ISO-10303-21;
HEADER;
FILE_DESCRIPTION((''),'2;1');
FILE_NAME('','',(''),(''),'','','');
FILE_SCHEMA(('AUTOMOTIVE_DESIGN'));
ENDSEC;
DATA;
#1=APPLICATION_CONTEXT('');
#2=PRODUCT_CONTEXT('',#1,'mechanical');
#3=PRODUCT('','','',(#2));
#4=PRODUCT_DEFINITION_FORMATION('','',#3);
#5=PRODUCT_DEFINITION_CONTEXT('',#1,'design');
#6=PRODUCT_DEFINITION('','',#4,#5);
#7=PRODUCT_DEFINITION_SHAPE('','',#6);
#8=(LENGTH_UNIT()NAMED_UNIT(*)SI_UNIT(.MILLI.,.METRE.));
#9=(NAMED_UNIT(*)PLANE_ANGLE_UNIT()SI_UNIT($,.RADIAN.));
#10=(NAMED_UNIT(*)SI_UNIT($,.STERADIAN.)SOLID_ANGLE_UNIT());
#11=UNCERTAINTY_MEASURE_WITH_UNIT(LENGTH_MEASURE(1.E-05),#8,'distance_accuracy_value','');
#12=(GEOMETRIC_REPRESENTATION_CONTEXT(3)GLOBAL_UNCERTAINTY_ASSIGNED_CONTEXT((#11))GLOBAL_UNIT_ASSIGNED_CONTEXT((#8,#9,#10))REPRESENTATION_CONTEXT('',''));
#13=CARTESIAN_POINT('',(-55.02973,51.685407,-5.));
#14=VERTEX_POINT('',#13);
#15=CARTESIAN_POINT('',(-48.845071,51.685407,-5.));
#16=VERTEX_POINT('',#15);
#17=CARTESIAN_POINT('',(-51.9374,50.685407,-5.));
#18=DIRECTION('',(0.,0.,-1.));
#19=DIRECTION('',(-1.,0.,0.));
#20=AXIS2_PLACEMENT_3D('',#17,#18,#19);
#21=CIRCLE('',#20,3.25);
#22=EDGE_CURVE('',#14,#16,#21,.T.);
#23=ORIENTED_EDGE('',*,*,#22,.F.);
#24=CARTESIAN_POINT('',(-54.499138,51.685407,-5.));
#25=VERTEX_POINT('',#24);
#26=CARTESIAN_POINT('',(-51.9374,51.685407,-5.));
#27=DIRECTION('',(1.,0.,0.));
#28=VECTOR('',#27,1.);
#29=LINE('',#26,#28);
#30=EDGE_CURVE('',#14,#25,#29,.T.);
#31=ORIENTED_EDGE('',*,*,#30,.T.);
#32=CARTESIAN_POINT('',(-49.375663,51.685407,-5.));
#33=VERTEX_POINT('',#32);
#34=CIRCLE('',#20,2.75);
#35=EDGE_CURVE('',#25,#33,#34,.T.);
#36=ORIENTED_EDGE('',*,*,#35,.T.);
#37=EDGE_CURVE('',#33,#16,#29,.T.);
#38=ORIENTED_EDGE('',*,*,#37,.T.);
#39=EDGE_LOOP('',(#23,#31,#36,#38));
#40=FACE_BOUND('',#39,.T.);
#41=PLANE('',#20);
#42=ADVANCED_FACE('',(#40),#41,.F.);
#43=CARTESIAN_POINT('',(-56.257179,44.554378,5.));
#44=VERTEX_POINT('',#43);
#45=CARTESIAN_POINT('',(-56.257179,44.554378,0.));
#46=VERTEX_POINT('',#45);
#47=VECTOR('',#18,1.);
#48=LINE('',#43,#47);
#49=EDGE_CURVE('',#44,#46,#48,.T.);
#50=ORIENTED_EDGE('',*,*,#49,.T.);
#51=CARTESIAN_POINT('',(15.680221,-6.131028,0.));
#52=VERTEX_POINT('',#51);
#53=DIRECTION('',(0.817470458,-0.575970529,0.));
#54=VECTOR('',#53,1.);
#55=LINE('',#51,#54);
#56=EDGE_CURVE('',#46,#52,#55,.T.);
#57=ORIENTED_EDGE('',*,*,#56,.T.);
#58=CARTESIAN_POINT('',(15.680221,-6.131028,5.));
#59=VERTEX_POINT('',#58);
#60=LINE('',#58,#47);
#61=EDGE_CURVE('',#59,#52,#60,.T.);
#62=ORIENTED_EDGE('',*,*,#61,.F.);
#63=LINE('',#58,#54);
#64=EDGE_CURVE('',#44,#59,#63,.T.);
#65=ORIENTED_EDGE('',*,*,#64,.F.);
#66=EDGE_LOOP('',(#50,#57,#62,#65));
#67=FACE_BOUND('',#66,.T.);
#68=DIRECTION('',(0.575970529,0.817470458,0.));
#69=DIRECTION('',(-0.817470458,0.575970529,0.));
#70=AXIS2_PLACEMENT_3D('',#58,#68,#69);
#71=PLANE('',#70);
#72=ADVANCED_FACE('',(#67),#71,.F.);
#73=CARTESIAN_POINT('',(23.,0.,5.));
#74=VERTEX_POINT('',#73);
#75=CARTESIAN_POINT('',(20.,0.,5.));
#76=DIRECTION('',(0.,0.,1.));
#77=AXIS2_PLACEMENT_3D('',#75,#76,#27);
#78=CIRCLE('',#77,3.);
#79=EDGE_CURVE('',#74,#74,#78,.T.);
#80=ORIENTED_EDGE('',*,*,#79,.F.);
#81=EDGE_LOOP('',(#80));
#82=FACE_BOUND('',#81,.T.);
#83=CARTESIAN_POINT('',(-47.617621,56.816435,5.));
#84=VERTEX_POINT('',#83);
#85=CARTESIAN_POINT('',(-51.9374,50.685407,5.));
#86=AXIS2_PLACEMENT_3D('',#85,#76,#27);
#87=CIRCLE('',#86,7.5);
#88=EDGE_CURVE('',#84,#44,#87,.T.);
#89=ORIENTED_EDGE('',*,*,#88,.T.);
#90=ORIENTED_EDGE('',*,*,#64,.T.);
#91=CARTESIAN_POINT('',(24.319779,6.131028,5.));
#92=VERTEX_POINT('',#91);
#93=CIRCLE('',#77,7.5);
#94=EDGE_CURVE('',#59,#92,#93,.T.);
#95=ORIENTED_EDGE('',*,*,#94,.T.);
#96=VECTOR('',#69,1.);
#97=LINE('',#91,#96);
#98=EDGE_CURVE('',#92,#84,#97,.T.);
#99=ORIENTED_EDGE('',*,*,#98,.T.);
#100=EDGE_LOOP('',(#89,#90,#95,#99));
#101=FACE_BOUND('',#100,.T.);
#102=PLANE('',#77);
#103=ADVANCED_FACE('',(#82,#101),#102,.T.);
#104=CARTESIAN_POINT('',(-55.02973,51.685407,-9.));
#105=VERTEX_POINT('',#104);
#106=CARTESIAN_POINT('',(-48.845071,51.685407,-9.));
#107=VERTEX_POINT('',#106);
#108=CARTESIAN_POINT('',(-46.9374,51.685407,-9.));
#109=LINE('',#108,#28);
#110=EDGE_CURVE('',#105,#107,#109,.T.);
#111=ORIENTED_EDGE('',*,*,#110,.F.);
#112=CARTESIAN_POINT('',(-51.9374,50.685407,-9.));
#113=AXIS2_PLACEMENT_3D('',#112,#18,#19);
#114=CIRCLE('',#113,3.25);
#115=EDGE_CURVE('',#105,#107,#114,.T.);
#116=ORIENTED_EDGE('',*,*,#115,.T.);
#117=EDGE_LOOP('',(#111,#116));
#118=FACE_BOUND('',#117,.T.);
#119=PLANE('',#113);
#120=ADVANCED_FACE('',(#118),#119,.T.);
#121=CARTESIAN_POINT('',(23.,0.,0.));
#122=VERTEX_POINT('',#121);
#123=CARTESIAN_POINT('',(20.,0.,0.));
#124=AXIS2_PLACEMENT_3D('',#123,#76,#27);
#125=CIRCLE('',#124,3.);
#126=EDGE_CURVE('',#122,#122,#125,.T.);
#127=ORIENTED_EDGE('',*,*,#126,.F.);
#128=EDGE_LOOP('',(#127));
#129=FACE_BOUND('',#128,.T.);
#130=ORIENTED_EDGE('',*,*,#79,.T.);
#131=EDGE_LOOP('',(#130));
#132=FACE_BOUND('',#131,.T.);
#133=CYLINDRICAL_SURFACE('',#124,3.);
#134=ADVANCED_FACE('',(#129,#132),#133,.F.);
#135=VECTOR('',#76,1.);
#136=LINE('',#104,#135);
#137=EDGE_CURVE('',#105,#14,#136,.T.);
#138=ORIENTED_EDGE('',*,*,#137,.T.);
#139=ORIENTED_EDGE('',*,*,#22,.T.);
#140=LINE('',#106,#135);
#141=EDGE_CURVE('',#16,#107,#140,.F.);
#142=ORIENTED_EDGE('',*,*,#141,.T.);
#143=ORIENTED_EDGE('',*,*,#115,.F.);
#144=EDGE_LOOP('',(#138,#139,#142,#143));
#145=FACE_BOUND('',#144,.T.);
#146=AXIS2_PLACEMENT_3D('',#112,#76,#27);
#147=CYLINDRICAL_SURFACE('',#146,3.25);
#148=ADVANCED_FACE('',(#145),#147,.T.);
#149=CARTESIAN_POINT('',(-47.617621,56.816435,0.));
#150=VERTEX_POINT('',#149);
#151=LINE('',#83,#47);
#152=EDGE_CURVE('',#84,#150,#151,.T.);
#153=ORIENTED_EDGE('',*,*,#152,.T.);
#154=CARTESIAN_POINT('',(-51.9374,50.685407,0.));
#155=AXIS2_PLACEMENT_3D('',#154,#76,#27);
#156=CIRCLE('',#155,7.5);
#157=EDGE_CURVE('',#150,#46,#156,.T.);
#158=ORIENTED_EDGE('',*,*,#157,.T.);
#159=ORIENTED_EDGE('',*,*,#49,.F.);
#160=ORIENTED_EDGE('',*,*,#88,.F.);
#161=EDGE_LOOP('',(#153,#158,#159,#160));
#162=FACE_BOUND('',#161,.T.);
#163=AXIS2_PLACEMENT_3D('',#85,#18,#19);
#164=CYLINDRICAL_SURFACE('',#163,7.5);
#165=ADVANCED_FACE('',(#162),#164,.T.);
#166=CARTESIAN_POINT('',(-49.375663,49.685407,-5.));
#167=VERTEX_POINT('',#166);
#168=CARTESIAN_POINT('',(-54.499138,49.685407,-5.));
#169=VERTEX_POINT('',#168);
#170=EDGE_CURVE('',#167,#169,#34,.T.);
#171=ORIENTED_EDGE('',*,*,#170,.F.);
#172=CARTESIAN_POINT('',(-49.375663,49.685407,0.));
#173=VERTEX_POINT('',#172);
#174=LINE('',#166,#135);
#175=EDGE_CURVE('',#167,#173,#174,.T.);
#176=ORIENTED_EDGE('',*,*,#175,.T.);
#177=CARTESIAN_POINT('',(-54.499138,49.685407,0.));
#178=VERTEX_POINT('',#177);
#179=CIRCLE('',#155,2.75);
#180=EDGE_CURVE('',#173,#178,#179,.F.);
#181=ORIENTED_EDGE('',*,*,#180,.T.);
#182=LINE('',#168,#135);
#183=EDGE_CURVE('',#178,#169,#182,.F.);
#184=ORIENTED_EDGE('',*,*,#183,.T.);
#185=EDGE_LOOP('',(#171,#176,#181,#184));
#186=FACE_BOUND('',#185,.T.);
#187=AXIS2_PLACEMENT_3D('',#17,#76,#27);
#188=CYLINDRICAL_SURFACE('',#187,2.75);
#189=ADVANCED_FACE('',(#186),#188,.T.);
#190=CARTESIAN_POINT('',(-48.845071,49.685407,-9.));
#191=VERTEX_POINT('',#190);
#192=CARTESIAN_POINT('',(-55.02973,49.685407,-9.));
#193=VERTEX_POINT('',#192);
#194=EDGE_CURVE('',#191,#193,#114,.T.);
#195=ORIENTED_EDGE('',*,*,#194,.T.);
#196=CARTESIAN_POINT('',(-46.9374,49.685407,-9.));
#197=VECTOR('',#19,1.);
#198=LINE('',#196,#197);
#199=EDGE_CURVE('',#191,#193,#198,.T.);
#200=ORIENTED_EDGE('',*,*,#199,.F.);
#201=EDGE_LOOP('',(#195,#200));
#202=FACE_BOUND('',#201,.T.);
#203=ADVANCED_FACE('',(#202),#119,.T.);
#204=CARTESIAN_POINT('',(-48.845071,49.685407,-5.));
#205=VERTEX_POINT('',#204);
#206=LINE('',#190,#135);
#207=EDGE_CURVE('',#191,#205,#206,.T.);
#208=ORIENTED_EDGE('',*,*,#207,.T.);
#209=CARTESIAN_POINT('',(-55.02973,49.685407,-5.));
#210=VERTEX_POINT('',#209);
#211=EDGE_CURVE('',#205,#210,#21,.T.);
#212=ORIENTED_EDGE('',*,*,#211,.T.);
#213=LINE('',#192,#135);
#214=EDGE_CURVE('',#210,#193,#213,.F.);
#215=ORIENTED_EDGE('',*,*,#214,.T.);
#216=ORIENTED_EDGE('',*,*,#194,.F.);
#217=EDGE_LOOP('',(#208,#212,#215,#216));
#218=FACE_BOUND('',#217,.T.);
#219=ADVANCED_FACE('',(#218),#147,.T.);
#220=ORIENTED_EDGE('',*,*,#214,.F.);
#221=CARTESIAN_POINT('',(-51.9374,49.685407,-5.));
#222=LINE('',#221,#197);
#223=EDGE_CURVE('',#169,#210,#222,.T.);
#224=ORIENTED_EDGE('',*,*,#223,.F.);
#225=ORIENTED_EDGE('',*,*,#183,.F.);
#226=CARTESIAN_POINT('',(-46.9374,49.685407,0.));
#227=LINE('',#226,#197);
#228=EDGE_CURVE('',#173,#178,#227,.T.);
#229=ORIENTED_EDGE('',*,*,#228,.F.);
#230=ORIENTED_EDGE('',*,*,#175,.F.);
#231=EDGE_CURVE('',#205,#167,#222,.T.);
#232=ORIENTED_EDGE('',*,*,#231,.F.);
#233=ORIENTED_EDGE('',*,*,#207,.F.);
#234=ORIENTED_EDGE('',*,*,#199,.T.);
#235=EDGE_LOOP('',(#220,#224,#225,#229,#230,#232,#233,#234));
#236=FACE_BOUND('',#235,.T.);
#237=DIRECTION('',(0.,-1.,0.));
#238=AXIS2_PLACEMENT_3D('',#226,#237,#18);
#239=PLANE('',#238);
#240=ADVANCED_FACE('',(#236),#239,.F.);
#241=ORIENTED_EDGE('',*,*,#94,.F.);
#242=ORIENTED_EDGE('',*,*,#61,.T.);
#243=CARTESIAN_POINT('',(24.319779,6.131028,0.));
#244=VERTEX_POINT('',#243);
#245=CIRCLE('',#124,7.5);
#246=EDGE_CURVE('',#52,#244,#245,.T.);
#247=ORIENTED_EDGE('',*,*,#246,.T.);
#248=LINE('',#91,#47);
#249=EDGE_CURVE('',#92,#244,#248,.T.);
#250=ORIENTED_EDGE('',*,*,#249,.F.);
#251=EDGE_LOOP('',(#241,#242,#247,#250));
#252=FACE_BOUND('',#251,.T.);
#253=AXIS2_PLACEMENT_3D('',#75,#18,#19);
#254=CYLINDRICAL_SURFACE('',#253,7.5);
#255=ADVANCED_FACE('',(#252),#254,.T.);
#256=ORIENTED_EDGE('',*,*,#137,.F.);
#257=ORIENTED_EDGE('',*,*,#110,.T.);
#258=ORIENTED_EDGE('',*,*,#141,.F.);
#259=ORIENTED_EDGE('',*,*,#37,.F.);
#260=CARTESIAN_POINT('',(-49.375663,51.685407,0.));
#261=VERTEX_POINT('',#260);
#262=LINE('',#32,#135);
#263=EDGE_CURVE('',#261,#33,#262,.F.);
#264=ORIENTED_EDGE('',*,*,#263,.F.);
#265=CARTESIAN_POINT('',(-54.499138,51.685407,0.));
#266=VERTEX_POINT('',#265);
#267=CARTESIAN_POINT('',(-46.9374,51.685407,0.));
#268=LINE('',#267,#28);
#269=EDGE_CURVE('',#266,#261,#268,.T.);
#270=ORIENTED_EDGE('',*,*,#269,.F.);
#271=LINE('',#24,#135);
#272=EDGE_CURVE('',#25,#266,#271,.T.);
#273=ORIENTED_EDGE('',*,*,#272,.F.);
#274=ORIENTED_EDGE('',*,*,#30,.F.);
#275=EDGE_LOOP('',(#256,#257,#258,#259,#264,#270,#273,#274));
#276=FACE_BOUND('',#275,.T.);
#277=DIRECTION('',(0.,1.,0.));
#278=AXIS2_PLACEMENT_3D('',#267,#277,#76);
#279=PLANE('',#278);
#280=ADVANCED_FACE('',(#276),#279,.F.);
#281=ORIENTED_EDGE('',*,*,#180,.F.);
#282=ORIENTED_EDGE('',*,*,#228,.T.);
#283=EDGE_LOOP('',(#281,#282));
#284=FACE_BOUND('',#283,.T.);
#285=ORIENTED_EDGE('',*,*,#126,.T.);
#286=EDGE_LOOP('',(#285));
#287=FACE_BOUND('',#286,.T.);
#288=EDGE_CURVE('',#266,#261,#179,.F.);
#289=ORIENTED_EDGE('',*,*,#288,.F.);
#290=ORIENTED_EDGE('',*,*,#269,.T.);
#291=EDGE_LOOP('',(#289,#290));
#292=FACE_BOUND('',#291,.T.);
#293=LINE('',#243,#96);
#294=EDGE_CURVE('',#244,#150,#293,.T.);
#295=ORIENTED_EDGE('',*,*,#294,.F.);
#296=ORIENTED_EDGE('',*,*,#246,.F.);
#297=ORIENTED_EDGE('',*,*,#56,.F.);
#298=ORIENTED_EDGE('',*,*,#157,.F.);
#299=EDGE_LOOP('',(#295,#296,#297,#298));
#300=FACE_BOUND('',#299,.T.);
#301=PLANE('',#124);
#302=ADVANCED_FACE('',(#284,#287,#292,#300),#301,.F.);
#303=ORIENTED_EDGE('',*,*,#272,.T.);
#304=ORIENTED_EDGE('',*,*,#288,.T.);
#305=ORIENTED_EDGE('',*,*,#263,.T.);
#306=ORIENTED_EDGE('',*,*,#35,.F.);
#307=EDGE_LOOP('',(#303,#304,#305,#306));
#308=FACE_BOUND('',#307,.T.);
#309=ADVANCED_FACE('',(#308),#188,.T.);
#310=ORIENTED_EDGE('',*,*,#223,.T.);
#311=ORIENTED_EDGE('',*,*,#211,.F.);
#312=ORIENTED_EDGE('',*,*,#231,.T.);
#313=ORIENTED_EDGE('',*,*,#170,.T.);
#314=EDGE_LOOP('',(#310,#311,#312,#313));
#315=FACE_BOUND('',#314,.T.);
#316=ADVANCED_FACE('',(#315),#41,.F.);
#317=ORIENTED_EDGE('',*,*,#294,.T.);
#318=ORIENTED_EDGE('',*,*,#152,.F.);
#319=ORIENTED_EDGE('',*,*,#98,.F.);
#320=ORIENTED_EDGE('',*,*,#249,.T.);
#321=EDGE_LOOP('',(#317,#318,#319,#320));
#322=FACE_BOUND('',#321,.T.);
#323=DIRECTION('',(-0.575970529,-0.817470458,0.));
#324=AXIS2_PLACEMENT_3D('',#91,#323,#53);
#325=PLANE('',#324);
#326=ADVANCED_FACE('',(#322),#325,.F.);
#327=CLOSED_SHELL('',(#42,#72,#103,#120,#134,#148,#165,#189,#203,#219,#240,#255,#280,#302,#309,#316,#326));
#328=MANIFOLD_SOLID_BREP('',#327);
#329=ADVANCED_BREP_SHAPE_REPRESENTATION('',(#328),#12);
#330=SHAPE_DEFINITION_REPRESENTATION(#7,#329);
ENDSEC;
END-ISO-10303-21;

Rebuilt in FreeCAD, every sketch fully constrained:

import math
import FreeCAD as App
import Part
import Sketcher


def add_polygon(sketch, points):
    """Adds a closed chain of lines whose ends are joined by coincident constraints."""
    first, n = sketch.GeometryCount, len(points)
    for a, b in zip(points, points[1:] + points[:1]):
        sketch.addGeometry(Part.LineSegment(App.Vector(*a, 0), App.Vector(*b, 0)), False)
    for i in range(n):
        sketch.addConstraint(Sketcher.Constraint("Coincident", first + i, 2, first + (i + 1) % n, 1))

doc = App.newDocument("Part")
body = doc.addObject("PartDesign::Body", "Body")

# Sketch on XY plane
sketch1 = body.newObject("Sketcher::SketchObject", "Sketch")
sketch1.AttachmentSupport = (doc.getObject("XY_Plane"), [""])
sketch1.MapMode = "FlatFace"
sketch1.addGeometry([
    Part.LineSegment(App.Vector(-56.257179, 44.554378, 0), App.Vector(15.680221, -6.131028, 0)),
    Part.ArcOfCircle(Part.Circle(App.Vector(20, 0, 0), App.Vector(0, 0, 1), 7.5), math.radians(-125.167627), math.radians(54.832373)),
    Part.LineSegment(App.Vector(24.319779, 6.131028, 0), App.Vector(-47.617621, 56.816435, 0)),
    Part.ArcOfCircle(Part.Circle(App.Vector(-51.9374, 50.685407, 0), App.Vector(0, 0, 1), 7.5), math.radians(54.832373), math.radians(234.832373)),
], False)
sketch1.addConstraint([
    Sketcher.Constraint("Tangent", 0, 2, 1, 1),
    Sketcher.Constraint("Tangent", 1, 2, 2, 1),
    Sketcher.Constraint("Tangent", 2, 2, 3, 1),
    Sketcher.Constraint("Tangent", 3, 2, 0, 1),
    Sketcher.Constraint("Equal", 1, 3),
    Sketcher.Constraint("PointOnObject", 1, 3, -1),
    Sketcher.Constraint("Radius", 1, 7.5),
    Sketcher.Constraint("Distance", 0, 88.0),
    Sketcher.Constraint("DistanceX", -1, 1, 1, 3, 20.0),
    Sketcher.Constraint("DistanceX", 3, 3, -1, 1, 51.9374),
])
pad1 = body.newObject("PartDesign::Pad", "Pad")
pad1.Profile = sketch1
pad1.Length = 5

# Sketch on XY plane
sketch2 = body.newObject("Sketcher::SketchObject", "Sketch001")
sketch2.AttachmentSupport = (doc.getObject("XY_Plane"), [""])
sketch2.MapMode = "FlatFace"
sketch2.AttachmentOffset = App.Placement(App.Vector(0, 0, 5), App.Rotation())
sketch2.addGeometry(Part.Circle(App.Vector(20, 0, 0), App.Vector(0, 0, 1), 3), False)
sketch2.addConstraint([
    Sketcher.Constraint("PointOnObject", 0, 3, -1),
    Sketcher.Constraint("Diameter", 0, 6.0),
    Sketcher.Constraint("DistanceX", -1, 1, 0, 3, 20.0),
])
pocket1 = body.newObject("PartDesign::Pocket", "Pocket")
pocket1.Profile = sketch2
pocket1.Length = 5

# Sketch on XY plane
sketch3 = body.newObject("Sketcher::SketchObject", "Sketch002")
sketch3.AttachmentSupport = (doc.getObject("XY_Plane"), [""])
sketch3.MapMode = "FlatFace"
sketch3.addGeometry(Part.Circle(App.Vector(-51.9374, 50.685407, 0), App.Vector(0, 0, 1), 2.75), False)
sketch3.addConstraint([
    Sketcher.Constraint("Diameter", 0, 5.5),
    Sketcher.Constraint("DistanceX", 0, 3, -1, 1, 51.9374),
    Sketcher.Constraint("DistanceY", -1, 1, 0, 3, 50.685407),
])
pad2 = body.newObject("PartDesign::Pad", "Pad001")
pad2.Profile = sketch3
pad2.Length = 5
pad2.Reversed = True

# Sketch on XY plane
sketch4 = body.newObject("Sketcher::SketchObject", "Sketch003")
sketch4.AttachmentSupport = (doc.getObject("XY_Plane"), [""])
sketch4.MapMode = "FlatFace"
sketch4.AttachmentOffset = App.Placement(App.Vector(0, 0, -5), App.Rotation())
sketch4.addGeometry(Part.Circle(App.Vector(-51.9374, 50.685407, 0), App.Vector(0, 0, 1), 3.25), False)
sketch4.addConstraint([
    Sketcher.Constraint("Diameter", 0, 6.5),
    Sketcher.Constraint("DistanceX", 0, 3, -1, 1, 51.9374),
    Sketcher.Constraint("DistanceY", -1, 1, 0, 3, 50.685407),
])
pad3 = body.newObject("PartDesign::Pad", "Pad002")
pad3.Profile = sketch4
pad3.Length = 4
pad3.Reversed = True

# Sketch on XY plane
sketch5 = body.newObject("Sketcher::SketchObject", "Sketch004")
sketch5.AttachmentSupport = (doc.getObject("XY_Plane"), [""])
sketch5.MapMode = "FlatFace"
sketch5.AttachmentOffset = App.Placement(App.Vector(0, 0, -9), App.Rotation())
add_polygon(sketch5, [(-46.9374, 51.685407), (-46.9374, 49.685407), (-56.9374, 49.685407), (-56.9374, 51.685407)])  # lines 0-3
sketch5.addConstraint([
    Sketcher.Constraint("Vertical", 0),
    Sketcher.Constraint("Horizontal", 1),
    Sketcher.Constraint("Vertical", 2),
    Sketcher.Constraint("Horizontal", 3),
    Sketcher.Constraint("DistanceX", 1, 2, 1, 1, 10.0),
    Sketcher.Constraint("DistanceY", 0, 2, 0, 1, 2.0),
    Sketcher.Constraint("DistanceX", 0, 2, -1, 1, 46.9374),
    Sketcher.Constraint("DistanceY", -1, 1, 0, 2, 49.685407),
])
pocket2 = body.newObject("PartDesign::Pocket", "Pocket001")
pocket2.Profile = sketch5
pocket2.Length = 9
pocket2.Reversed = True

doc.recompute()
